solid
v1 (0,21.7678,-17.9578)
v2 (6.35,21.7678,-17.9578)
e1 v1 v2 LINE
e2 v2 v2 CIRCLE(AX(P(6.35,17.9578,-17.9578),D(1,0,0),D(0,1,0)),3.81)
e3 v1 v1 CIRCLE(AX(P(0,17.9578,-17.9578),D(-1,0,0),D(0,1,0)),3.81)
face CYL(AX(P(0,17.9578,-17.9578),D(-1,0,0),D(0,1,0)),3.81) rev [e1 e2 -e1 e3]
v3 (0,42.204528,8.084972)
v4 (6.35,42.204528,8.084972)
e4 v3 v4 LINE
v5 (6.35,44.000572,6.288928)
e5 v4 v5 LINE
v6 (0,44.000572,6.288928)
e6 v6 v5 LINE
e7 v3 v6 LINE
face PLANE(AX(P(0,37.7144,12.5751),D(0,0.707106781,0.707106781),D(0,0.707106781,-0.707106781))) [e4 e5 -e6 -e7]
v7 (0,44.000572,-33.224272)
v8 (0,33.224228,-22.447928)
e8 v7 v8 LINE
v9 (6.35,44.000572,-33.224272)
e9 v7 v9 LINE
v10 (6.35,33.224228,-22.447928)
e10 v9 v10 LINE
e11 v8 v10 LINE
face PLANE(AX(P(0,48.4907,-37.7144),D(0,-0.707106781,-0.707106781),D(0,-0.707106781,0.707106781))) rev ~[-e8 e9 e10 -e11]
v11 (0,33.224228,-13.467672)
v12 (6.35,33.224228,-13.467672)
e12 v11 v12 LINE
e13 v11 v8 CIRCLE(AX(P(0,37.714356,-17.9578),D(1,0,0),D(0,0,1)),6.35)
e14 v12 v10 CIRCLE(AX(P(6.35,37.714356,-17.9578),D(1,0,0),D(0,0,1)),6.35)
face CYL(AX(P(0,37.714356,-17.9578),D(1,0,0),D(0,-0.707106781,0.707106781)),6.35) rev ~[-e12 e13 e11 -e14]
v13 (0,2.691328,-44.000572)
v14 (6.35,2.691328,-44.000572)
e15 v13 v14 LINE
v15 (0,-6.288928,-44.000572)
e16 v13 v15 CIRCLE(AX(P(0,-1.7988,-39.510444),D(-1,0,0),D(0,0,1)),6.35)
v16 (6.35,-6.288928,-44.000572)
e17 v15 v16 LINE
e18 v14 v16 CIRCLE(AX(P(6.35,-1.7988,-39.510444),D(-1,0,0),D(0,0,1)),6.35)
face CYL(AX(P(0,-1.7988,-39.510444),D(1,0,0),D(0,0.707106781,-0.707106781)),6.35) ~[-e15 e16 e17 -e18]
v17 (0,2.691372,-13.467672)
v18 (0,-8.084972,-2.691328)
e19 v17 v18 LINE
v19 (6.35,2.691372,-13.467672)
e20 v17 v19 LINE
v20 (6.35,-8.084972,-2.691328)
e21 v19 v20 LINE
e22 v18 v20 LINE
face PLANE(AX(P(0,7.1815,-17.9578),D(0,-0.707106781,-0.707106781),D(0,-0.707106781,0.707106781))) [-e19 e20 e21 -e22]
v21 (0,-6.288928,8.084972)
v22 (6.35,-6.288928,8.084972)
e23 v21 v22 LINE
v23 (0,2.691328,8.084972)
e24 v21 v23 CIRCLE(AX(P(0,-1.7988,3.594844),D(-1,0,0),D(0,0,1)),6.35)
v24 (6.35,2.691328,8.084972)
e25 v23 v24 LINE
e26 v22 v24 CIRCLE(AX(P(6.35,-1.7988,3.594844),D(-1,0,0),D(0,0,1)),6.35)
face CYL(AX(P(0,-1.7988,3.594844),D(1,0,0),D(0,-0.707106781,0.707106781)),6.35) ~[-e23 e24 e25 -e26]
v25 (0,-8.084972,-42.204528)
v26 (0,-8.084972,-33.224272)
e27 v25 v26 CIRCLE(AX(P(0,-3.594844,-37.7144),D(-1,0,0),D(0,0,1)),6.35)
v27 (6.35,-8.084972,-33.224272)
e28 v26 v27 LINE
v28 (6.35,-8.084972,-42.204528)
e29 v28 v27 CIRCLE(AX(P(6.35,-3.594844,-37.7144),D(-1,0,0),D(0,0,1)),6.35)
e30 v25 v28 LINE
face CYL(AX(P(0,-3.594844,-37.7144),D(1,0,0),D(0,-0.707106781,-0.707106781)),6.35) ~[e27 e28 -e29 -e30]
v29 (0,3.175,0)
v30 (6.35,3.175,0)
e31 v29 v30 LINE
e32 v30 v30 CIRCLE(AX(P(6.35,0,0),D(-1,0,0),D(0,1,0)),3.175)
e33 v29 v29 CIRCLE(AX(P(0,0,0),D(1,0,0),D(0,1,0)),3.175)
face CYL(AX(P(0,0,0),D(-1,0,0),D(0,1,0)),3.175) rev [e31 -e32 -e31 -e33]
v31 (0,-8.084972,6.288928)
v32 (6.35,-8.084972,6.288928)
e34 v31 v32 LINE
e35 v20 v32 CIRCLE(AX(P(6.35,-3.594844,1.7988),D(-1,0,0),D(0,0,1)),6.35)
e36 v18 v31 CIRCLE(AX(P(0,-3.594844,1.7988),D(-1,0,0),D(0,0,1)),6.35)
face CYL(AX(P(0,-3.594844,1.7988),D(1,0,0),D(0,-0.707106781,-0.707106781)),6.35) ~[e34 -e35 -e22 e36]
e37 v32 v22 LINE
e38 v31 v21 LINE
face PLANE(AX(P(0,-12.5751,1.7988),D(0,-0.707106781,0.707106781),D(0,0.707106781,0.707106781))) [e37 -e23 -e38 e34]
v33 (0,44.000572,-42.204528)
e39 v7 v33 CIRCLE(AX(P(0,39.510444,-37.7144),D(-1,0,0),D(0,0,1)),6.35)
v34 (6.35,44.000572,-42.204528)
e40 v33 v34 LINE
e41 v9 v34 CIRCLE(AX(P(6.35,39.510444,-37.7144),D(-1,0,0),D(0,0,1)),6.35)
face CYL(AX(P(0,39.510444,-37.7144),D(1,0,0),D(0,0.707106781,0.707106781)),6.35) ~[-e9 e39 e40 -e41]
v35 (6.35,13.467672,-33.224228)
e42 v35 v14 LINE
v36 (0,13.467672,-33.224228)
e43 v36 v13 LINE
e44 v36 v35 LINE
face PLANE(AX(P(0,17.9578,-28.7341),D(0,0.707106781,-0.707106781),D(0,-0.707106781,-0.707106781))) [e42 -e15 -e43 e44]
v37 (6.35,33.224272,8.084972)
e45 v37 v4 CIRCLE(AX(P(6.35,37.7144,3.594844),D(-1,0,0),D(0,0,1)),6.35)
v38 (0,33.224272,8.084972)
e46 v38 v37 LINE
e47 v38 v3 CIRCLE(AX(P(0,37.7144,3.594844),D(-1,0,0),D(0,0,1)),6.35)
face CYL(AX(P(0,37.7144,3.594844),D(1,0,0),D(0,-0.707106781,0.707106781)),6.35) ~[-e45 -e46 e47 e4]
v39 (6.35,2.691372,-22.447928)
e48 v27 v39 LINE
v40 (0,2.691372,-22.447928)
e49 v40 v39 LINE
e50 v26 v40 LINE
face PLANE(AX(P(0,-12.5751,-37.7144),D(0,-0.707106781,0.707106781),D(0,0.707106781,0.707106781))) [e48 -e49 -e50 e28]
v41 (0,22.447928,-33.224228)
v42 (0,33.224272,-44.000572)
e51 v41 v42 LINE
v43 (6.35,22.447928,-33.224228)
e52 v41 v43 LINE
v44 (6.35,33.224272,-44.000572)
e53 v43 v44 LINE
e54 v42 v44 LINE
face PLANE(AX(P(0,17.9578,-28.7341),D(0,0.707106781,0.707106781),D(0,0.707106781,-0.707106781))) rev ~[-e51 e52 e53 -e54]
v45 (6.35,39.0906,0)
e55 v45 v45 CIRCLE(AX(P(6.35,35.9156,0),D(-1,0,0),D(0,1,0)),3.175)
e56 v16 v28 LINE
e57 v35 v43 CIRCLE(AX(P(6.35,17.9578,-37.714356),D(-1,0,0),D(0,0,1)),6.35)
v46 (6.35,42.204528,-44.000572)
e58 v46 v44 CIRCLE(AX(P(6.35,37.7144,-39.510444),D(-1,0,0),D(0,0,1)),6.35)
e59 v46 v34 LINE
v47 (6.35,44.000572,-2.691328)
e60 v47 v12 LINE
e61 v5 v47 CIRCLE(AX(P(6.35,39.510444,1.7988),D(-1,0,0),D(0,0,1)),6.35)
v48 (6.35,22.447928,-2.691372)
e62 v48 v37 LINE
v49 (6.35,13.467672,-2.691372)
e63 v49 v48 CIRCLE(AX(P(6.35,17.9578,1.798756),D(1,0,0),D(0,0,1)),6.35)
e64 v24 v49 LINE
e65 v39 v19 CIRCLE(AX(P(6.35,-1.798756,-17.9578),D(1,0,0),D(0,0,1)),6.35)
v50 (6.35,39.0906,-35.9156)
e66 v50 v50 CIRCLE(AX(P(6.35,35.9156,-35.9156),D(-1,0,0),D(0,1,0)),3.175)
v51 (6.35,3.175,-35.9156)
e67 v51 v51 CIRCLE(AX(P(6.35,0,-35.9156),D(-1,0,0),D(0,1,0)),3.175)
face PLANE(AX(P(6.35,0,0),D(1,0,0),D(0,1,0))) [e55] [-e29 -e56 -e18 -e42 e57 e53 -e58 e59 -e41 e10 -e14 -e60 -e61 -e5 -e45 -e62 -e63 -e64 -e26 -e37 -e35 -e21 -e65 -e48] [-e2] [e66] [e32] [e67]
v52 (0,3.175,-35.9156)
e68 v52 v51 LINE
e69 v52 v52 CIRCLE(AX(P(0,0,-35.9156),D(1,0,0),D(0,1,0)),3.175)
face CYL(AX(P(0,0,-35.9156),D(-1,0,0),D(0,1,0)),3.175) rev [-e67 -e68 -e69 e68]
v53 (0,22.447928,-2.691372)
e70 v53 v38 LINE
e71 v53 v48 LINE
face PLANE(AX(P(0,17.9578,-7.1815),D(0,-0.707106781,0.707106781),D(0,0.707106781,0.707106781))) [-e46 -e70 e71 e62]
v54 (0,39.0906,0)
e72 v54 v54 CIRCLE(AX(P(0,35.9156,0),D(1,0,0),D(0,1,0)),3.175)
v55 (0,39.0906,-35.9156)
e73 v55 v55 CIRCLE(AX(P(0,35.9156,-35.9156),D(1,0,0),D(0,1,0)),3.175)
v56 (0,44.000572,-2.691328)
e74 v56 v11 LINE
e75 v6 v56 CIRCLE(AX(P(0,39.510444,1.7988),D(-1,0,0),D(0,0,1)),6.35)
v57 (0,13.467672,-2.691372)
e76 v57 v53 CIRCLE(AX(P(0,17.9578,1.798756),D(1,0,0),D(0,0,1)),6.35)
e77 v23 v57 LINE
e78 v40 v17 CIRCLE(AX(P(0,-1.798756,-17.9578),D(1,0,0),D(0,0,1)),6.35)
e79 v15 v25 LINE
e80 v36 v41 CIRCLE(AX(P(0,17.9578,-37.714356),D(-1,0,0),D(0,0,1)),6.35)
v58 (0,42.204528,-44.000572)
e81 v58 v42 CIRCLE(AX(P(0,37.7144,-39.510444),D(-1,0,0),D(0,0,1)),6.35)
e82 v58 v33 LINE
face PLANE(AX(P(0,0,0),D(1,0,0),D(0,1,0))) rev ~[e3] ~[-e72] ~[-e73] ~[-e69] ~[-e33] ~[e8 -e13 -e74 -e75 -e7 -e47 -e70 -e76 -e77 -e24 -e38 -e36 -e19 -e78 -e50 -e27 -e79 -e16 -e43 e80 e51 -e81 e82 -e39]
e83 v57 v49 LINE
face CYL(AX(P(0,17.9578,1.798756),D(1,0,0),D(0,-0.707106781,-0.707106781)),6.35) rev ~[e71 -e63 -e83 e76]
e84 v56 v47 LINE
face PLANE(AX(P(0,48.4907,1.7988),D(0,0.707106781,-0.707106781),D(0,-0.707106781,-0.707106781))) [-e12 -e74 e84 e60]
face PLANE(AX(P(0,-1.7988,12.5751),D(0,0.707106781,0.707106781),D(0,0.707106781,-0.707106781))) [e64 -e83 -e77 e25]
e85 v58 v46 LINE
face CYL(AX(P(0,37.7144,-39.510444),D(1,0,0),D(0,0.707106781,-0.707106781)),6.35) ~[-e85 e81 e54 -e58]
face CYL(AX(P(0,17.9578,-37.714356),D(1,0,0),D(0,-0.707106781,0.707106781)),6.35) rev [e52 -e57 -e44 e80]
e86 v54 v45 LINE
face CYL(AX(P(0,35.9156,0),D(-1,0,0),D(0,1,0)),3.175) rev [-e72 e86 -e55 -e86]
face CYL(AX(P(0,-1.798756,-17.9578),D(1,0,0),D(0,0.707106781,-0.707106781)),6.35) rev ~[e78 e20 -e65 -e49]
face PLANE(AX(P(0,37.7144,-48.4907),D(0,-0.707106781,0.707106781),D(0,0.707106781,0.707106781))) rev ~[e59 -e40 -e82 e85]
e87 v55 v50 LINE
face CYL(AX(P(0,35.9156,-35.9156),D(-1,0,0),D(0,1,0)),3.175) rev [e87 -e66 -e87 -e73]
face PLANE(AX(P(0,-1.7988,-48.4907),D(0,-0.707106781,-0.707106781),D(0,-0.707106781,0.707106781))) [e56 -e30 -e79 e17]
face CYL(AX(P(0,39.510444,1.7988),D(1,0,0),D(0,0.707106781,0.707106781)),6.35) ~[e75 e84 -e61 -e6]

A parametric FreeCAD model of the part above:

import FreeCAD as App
import Part
import Sketcher
Q = App.Units.Quantity


def edges_at(feature, points):
    """Names of the edges that pass closest to the given points."""
    edges = feature.Shape.Edges
    near = lambda p: min(range(len(edges)), key=lambda i: edges[i].distToShape(Part.Vertex(*p))[0])
    return sorted({f"Edge{near(p) + 1}" for p in points})


def add_polygon(sketch, points):
    """Adds a closed chain of lines whose ends are joined by coincident constraints."""
    first, n = sketch.GeometryCount, len(points)
    for a, b in zip(points, points[1:] + points[:1]):
        sketch.addGeometry(Part.LineSegment(App.Vector(*a, 0), App.Vector(*b, 0)), False)
    for i in range(n):
        sketch.addConstraint(Sketcher.Constraint("Coincident", first + i, 2, first + (i + 1) % n, 1))

doc = App.newDocument("Part")
body = doc.addObject("PartDesign::Body", "Body")

sketch1 = doc.addObject("Sketcher::SketchObject", "Sketch")
body.addObject(sketch1)
sketch1.AttachmentSupport = (doc.YZ_Plane, [""])
sketch1.MapMode = "FlatFace"
add_polygon(sketch1, [(-1.8, -48.5), (18, -28.7), (37.7, -48.5), (48.5, -37.7), (28.7, -18), (48.5, 1.8), (37.7, 12.6), (18, -7.2), (-1.8, 12.6), (-12.6, 1.8), (7.2, -18), (-12.6, -37.7)])
sketch1.addGeometry(Part.Circle(App.Vector(18, -18, 0), App.Vector(0, 0, 1), 3.8), False)
sketch1.addGeometry(Part.Circle(App.Vector(0, -35.9, 0), App.Vector(0, 0, 1), 3.2), False)
sketch1.addGeometry(Part.Circle(App.Vector(35.9, 0, 0), App.Vector(0, 0, 1), 3.2), False)
sketch1.addGeometry(Part.Circle(App.Vector(35.9, -35.9, 0), App.Vector(0, 0, 1), 3.2), False)
sketch1.addGeometry(Part.Circle(App.Vector(0, 0, 0), App.Vector(0, 0, 1), 3.2), False)
sketch1.addConstraint([
    Sketcher.Constraint("Coincident", 16, 3, -1, 1),
    Sketcher.Constraint("Equal", 13, 14),
    Sketcher.Constraint("Equal", 14, 15),
    Sketcher.Constraint("Equal", 15, 16),
    Sketcher.Constraint("PointOnObject", 13, 3, -2),
    Sketcher.Constraint("PointOnObject", 14, 3, -1),
    Sketcher.Constraint("Perpendicular", 0, 1),
    Sketcher.Constraint("Perpendicular", 1, 2),
    Sketcher.Constraint("Perpendicular", 2, 3),
    Sketcher.Constraint("Perpendicular", 3, 4),
    Sketcher.Constraint("Perpendicular", 4, 5),
    Sketcher.Constraint("Perpendicular", 5, 6),
    Sketcher.Constraint("Perpendicular", 6, 7),
    Sketcher.Constraint("Perpendicular", 7, 8),
    Sketcher.Constraint("Perpendicular", 8, 9),
    Sketcher.Constraint("Perpendicular", 9, 10),
    Sketcher.Constraint("Perpendicular", 10, 11),
    Sketcher.Constraint("Horizontal", 13, 3, 15, 3),
    Sketcher.Constraint("Horizontal", 12, 3, 3, 2),
    Sketcher.Constraint("Horizontal", 5, 2, 7, 2),
    Sketcher.Constraint("Horizontal", 4, 2, 8, 2),
    Sketcher.Constraint("Horizontal", 3, 2, 9, 2),
    Sketcher.Constraint("Horizontal", 2, 2, 10, 2),
    Sketcher.Constraint("Horizontal", 1, 2, 11, 2),
    Sketcher.Constraint("Vertical", 14, 3, 15, 3),
    Sketcher.Constraint("Vertical", 12, 3, 0, 2),
    Sketcher.Constraint("Vertical", 2, 2, 4, 2),
    Sketcher.Constraint("Vertical", 1, 2, 5, 2),
    Sketcher.Constraint("Vertical", 0, 2, 6, 2),
    Sketcher.Constraint("Equal", 1, 3),
    Sketcher.Constraint("Diameter", 12, Q("0.3 in")),
    Sketcher.Constraint("Diameter", 13, Q("0.25 in")),
    Sketcher.Constraint("Distance", 2, Q("0.6 in")),
    Sketcher.Constraint("DistanceY", 13, 3, -1, 1, Q("1.414 in")),
    Sketcher.Constraint("DistanceX", -1, 1, 14, 3, Q("1.414 in")),
    Sketcher.Constraint("Distance", 0, Q("1.1 in")),
    Sketcher.Constraint("DistanceX", -1, 1, 12, 3, Q("0.707 in")),
    Sketcher.Constraint("DistanceY", 12, 3, -1, 1, Q("0.707 in")),
])
pad1 = doc.addObject("PartDesign::Pad", "Pad")
body.addObject(pad1)
pad1.Profile = sketch1
pad1.Length = Q("0.25 in")
doc.recompute()

fillet = doc.addObject("PartDesign::Fillet", "Fillet")
body.addObject(fillet)
fillet.Base = (pad1, edges_at(pad1, [
    (3.175, 28.734, -17.958),
    (3.175, 48.491, -37.714),
    (3.175, 37.714, -48.491),
    (3.175, -1.799, -48.491),
    (3.175, -1.799, 12.575),
    (3.175, 37.714, 12.575),
    (3.175, 48.491, 1.799),
    (3.175, 17.958, -28.734),
    (3.175, -12.575, -37.714),
    (3.175, -12.575, 1.799),
    (3.175, 7.181, -17.958),
    (3.175, 17.958, -7.181),
]))
fillet.Radius = Q("0.25 in")

doc.recompute()
